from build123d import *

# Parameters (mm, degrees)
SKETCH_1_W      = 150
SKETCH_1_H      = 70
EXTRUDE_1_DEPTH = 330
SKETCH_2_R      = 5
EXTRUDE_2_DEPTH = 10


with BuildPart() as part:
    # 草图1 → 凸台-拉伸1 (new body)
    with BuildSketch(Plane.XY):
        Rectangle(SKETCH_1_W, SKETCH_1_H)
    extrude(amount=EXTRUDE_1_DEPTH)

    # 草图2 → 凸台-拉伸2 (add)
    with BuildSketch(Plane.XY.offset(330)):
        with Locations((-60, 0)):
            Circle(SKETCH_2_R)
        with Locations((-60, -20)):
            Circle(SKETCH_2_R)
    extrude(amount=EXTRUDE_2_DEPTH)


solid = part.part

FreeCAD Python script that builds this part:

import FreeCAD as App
import Part
import Sketcher
Q = App.Units.Quantity


def add_polygon(sketch, points):
    """Adds a closed chain of lines whose ends are joined by coincident constraints."""
    first, n = sketch.GeometryCount, len(points)
    for a, b in zip(points, points[1:] + points[:1]):
        sketch.addGeometry(Part.LineSegment(App.Vector(*a, 0), App.Vector(*b, 0)), False)
    for i in range(n):
        sketch.addConstraint(Sketcher.Constraint("Coincident", first + i, 2, first + (i + 1) % n, 1))

doc = App.newDocument("Part")
params = doc.addObject("Spreadsheet::Sheet", "Params")
for row, (alias, value) in enumerate([
    ("sketch1_width", "150 mm"),
    ("sketch1_height", "70 mm"),
    ("pad1_length", "330 mm"),
    ("sketch2_diameter", "10 mm"),
    ("pad2_length", "10 mm"),
], start=1):
    params.set(f"A{row}", alias)
    params.set(f"B{row}", "=" + value)
    params.setAlias(f"B{row}", alias)

body = doc.addObject("PartDesign::Body", "Body")

# Sketch on XY plane
sketch1 = body.newObject("Sketcher::SketchObject", "Sketch")
sketch1.AttachmentSupport = (doc.getObject("XY_Plane"), [""])
sketch1.MapMode = "FlatFace"
add_polygon(sketch1, [(-75, 35), (-75, -35), (75, -35), (75, 35)])  # lines 0-3
sketch1.addConstraint([
    Sketcher.Constraint("Vertical", 0),
    Sketcher.Constraint("Horizontal", 1),
    Sketcher.Constraint("Vertical", 2),
    Sketcher.Constraint("Horizontal", 3),
    Sketcher.Constraint("Symmetric", 0, 2, 2, 2, -1, 1),
    Sketcher.Constraint("DistanceX", 1, 1, 1, 2, Q("150 mm")),
    Sketcher.Constraint("DistanceY", 0, 2, 0, 1, Q("70 mm")),
])
sketch1.setExpression("Constraints[9]", "Params.sketch1_width")
sketch1.setExpression("Constraints[10]", "Params.sketch1_height")
pad1 = body.newObject("PartDesign::Pad", "Pad")
pad1.Profile = sketch1
pad1.setExpression("Length", "Params.pad1_length")

# Sketch on XY plane
sketch2 = body.newObject("Sketcher::SketchObject", "Sketch001")
sketch2.AttachmentSupport = (doc.getObject("XY_Plane"), [""])
sketch2.MapMode = "FlatFace"
sketch2.AttachmentOffset = App.Placement(App.Vector(0, 0, 330), App.Rotation())
sketch2.addGeometry([
    Part.Circle(App.Vector(-60, 0, 0), App.Vector(0, 0, 1), 5),
    Part.Circle(App.Vector(-60, -20, 0), App.Vector(0, 0, 1), 5),
], False)
sketch2.addConstraint([
    Sketcher.Constraint("Equal", 0, 1),
    Sketcher.Constraint("PointOnObject", 0, 3, -1),
    Sketcher.Constraint("Vertical", 0, 3, 1, 3),
    Sketcher.Constraint("Diameter", 0, Q("10 mm")),
    Sketcher.Constraint("DistanceX", 0, 3, -1, 1, Q("60 mm")),
    Sketcher.Constraint("DistanceY", 1, 3, -1, 1, Q("20 mm")),
])
sketch2.setExpression("Constraints[3]", "Params.sketch2_diameter")
pad2 = body.newObject("PartDesign::Pad", "Pad001")
pad2.Profile = sketch2
pad2.setExpression("Length", "Params.pad2_length")

doc.recompute()
